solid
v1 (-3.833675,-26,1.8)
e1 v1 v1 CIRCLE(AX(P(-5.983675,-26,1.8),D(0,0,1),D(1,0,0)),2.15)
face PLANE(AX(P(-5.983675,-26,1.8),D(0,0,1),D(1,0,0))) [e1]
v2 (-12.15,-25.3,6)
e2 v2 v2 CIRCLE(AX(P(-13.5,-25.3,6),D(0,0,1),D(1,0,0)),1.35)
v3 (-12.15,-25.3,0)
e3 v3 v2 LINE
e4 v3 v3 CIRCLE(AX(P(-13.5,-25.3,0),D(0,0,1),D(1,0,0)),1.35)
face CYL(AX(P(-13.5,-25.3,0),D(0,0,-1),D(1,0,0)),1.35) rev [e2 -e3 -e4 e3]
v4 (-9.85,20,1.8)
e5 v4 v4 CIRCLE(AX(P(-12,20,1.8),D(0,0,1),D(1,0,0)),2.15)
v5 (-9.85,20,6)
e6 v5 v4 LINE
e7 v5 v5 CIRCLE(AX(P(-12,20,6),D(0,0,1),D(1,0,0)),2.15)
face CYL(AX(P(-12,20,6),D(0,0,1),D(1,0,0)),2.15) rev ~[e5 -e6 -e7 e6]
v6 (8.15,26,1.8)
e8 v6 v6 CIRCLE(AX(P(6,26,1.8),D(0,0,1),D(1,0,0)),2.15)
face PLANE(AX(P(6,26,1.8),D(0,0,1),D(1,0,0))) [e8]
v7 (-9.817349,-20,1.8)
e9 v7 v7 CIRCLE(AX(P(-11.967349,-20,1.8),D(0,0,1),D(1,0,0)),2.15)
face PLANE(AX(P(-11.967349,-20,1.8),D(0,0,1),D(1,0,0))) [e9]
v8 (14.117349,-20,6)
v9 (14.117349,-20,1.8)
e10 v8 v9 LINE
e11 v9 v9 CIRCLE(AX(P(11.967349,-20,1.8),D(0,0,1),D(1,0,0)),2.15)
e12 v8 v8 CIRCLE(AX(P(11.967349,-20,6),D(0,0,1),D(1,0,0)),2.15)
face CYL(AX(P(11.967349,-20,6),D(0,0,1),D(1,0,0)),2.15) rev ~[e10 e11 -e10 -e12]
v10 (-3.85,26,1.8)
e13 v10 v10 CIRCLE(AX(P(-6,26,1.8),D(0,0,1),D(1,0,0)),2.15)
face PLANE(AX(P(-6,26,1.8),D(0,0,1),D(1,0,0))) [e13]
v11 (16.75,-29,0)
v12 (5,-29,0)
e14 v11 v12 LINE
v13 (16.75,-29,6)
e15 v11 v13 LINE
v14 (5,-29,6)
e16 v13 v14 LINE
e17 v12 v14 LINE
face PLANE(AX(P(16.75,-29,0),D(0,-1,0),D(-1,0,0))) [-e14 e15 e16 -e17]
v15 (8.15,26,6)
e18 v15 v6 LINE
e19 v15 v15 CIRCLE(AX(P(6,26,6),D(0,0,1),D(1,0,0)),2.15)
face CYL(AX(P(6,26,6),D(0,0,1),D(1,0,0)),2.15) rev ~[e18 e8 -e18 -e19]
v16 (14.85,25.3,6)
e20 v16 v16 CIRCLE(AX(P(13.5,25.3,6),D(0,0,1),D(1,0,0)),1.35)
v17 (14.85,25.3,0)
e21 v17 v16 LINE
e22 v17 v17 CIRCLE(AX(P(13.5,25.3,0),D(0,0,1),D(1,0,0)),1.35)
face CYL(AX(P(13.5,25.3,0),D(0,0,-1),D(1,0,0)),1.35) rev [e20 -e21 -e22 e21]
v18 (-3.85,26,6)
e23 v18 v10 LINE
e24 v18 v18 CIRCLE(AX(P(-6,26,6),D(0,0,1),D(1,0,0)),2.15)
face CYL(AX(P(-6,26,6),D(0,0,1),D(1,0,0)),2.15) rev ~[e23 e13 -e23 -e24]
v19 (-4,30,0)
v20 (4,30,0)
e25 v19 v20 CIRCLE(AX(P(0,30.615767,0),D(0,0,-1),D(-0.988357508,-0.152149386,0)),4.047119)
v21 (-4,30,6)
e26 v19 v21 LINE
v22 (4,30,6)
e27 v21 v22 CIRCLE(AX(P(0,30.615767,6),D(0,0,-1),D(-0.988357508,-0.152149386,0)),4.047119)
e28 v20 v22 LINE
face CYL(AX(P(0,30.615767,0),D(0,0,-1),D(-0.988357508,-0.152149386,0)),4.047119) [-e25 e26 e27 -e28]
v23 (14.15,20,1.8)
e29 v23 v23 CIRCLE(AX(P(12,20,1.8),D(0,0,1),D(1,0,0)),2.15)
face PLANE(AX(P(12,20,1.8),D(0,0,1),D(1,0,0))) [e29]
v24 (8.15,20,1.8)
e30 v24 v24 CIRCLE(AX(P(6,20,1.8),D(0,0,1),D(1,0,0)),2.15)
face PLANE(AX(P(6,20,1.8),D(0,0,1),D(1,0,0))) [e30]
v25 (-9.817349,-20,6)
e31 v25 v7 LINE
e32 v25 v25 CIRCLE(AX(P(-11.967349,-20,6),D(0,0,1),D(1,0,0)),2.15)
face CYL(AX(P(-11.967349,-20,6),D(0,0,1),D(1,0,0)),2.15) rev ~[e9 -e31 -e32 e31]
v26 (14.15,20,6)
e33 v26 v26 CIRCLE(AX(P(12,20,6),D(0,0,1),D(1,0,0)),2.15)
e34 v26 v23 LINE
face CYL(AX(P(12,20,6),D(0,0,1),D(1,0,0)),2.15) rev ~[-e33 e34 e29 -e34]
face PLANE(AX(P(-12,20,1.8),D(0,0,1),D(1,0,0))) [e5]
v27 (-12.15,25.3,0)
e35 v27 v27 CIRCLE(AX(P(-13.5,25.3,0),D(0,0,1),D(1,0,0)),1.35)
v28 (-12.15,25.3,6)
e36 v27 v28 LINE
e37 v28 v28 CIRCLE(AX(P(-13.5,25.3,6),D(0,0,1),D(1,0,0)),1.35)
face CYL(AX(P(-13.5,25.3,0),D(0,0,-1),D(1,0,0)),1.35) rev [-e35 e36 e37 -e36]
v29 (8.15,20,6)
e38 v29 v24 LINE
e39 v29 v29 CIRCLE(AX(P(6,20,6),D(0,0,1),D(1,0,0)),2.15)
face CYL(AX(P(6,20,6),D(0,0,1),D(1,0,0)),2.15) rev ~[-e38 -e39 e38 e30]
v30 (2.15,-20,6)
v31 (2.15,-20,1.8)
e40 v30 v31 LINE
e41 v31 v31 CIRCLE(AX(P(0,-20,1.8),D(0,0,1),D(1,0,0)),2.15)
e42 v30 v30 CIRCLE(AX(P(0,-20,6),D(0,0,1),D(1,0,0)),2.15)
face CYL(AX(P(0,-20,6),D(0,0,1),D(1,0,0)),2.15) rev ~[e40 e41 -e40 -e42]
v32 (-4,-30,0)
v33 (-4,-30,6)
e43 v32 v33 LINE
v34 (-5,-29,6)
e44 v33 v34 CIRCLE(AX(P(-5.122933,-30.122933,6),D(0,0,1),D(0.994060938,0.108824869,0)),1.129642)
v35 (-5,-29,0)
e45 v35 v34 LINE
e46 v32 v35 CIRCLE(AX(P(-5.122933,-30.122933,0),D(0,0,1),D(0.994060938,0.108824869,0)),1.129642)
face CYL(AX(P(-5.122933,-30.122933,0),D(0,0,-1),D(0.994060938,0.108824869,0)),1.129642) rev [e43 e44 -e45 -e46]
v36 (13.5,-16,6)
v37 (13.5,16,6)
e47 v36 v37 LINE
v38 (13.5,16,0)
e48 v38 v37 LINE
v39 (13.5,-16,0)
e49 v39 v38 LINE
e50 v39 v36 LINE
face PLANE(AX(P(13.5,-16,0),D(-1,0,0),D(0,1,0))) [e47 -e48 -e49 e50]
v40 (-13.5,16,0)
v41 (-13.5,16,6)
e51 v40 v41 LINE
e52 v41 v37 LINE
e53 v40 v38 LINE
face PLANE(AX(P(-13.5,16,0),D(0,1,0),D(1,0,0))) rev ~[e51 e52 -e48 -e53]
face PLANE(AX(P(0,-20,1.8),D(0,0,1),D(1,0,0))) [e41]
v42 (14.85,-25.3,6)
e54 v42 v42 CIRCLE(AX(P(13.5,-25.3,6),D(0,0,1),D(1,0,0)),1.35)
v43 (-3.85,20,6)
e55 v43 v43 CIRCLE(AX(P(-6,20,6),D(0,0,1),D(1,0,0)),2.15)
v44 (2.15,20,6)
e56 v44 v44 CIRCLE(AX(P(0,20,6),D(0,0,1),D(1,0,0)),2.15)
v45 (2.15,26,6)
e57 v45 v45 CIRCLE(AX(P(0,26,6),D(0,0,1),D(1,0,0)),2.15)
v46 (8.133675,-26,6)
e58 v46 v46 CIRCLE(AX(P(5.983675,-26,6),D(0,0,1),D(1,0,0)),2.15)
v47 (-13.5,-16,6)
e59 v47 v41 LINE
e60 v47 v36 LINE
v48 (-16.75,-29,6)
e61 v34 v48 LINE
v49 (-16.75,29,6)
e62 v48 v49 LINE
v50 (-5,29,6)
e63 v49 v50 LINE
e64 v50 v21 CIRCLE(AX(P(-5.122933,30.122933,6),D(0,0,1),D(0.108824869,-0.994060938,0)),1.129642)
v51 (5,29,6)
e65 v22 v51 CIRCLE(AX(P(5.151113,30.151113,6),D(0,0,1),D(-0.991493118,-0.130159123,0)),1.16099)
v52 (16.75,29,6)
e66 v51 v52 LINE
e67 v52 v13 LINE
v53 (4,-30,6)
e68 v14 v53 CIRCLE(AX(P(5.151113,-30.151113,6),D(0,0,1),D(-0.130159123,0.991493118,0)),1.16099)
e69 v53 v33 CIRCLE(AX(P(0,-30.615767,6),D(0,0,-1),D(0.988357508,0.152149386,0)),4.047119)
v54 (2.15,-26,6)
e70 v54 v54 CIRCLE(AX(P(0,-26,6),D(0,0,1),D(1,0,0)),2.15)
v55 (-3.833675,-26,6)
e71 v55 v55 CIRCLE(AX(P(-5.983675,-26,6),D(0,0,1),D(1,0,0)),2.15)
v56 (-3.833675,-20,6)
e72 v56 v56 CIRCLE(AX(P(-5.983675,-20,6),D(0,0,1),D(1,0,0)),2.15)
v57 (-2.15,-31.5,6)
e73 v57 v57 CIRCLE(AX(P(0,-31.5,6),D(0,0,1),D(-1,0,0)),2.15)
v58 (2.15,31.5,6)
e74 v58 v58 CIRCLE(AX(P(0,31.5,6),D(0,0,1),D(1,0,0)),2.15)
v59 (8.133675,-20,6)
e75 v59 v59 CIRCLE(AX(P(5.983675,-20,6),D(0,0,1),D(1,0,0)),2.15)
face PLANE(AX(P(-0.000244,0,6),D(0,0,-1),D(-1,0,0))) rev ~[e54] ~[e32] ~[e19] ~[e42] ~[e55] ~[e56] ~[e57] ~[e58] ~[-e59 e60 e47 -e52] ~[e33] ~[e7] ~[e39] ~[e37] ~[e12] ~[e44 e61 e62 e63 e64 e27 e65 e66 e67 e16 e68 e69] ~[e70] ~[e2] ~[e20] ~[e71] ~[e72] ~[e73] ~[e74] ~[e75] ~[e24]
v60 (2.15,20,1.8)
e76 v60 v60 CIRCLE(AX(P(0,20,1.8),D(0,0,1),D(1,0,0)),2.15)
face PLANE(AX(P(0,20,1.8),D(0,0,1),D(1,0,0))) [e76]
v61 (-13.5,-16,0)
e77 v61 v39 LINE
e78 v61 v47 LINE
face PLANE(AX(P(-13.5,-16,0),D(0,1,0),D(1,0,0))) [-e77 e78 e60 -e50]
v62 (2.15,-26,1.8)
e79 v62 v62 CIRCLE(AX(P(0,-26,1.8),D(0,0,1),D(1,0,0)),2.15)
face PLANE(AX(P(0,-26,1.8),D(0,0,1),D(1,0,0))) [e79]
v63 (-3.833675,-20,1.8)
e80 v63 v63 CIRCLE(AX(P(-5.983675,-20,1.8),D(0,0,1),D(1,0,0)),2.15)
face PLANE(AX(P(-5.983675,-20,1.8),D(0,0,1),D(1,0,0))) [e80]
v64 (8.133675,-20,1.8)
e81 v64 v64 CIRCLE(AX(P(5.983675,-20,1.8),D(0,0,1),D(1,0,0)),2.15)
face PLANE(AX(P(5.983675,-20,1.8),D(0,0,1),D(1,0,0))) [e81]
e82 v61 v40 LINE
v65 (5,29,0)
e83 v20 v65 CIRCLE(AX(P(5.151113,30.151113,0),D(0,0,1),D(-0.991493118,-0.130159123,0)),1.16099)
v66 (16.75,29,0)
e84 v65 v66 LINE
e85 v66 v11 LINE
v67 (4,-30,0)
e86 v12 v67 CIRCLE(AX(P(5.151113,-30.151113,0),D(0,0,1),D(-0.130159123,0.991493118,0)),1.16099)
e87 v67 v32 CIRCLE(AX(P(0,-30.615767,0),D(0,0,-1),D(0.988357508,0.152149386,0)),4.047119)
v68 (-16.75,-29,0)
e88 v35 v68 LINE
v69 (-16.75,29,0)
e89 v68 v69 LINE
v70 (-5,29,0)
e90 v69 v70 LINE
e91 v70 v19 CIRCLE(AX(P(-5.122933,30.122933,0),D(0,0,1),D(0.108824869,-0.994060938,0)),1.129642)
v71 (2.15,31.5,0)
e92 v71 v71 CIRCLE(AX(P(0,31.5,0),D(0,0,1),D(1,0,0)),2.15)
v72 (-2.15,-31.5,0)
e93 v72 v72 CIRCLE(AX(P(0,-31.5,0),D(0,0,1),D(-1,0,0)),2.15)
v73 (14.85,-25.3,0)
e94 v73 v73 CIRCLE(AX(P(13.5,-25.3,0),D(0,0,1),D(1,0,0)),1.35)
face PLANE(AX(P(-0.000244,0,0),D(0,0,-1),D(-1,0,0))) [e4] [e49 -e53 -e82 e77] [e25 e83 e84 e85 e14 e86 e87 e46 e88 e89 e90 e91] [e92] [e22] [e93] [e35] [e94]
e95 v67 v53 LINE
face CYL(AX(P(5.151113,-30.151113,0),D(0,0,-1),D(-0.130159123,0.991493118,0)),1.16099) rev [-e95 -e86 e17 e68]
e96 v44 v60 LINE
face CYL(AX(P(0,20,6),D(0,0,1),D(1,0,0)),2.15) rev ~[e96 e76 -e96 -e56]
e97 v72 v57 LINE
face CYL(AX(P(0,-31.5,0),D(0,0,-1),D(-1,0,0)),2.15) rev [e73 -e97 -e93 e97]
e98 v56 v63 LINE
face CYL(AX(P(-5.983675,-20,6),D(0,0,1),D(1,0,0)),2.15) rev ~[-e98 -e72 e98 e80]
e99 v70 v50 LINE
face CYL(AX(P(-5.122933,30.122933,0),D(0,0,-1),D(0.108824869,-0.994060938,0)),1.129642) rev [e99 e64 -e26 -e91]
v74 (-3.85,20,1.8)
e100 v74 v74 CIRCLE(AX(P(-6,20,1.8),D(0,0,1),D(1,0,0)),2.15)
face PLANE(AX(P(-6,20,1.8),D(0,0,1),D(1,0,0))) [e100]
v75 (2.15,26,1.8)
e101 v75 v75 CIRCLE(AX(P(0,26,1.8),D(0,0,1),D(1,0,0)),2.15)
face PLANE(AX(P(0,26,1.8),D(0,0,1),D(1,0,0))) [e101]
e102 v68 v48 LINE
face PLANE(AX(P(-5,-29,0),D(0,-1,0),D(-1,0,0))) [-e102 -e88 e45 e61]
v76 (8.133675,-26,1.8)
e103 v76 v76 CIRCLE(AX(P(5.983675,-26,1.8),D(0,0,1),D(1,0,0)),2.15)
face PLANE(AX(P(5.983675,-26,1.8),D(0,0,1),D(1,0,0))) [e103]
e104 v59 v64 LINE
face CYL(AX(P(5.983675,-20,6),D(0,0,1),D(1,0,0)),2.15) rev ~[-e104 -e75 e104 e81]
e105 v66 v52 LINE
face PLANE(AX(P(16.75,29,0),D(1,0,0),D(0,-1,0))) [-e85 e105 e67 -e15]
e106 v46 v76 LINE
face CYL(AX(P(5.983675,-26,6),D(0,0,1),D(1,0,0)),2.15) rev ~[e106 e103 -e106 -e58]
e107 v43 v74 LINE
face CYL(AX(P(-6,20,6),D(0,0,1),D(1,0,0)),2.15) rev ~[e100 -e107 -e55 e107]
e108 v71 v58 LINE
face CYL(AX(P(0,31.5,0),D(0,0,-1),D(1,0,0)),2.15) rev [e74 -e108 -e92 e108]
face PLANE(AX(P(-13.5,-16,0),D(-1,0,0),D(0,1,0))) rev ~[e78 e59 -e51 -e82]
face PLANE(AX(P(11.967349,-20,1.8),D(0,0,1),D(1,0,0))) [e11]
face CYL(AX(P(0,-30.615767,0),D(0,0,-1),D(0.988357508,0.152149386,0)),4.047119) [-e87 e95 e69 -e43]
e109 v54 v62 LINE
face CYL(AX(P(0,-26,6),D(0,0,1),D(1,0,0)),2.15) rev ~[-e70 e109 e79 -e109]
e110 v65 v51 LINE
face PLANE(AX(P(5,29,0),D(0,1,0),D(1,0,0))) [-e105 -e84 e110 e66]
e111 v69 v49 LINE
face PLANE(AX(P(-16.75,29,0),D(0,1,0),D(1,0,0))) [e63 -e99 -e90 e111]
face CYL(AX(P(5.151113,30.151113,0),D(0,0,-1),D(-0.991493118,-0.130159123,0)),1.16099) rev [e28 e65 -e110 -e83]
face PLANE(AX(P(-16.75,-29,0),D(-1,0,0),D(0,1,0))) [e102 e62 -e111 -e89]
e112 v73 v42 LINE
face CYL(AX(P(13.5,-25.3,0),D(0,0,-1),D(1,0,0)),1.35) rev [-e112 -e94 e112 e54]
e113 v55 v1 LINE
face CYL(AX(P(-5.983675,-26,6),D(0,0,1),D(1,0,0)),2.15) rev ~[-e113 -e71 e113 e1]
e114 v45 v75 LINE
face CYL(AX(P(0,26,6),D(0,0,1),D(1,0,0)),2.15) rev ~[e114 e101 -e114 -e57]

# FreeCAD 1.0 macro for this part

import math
import FreeCAD as App
import Part
import Sketcher

V = App.Vector

doc = App.newDocument("Part")
body = doc.addObject("PartDesign::Body", "Body")

sketch1 = body.newObject("Sketcher::SketchObject", "Sketch")
sketch1.AttachmentSupport = (doc.getObject("XY_Plane"), [""])
sketch1.MapMode = "FlatFace"
sketch1.addGeometry(Part.LineSegment(V(-5, 29, 0), V(-16.8, 29, 0)), False)
sketch1.addGeometry(Part.LineSegment(V(-16.8, 29, 0), V(-16.8, -29, 0)), False)
sketch1.addGeometry(Part.LineSegment(V(-16.8, -29, 0), V(-5, -29, 0)), False)
sketch1.addGeometry(Part.ArcOfCircle(Part.Circle(V(-5.1, -30.1, 0), V(0, 0, 1), 1.1), math.radians(6), math.radians(84)), False)
sketch1.addGeometry(Part.ArcOfCircle(Part.Circle(V(0, -30.6, 0), V(0, 0, 1), 4), math.radians(171), math.radians(369)), False)
sketch1.addGeometry(Part.ArcOfCircle(Part.Circle(V(5.2, -30.2, 0), V(0, 0, 1), 1.2), math.radians(97), math.radians(173)), False)
sketch1.addGeometry(Part.LineSegment(V(5, -29, 0), V(16.8, -29, 0)), False)
sketch1.addGeometry(Part.LineSegment(V(16.8, -29, 0), V(16.8, 29, 0)), False)
sketch1.addGeometry(Part.LineSegment(V(16.8, 29, 0), V(5, 29, 0)), False)
sketch1.addGeometry(Part.ArcOfCircle(Part.Circle(V(5.2, 30.2, 0), V(0, 0, 1), 1.2), math.radians(-173), math.radians(-97)), False)
sketch1.addGeometry(Part.ArcOfCircle(Part.Circle(V(0, 30.6, 0), V(0, 0, 1), 4), math.radians(-9), math.radians(189)), False)
sketch1.addGeometry(Part.ArcOfCircle(Part.Circle(V(-5.1, 30.1, 0), V(0, 0, 1), 1.1), math.radians(-84), math.radians(-6)), False)
sketch1.addGeometry(Part.Circle(V(13.5, -25.3, 0), V(0, 0, 1), 1.4), False)
sketch1.addGeometry(Part.Circle(V(0, -31.5, 0), V(0, 0, 1), 2.1), False)
sketch1.addGeometry(Part.Circle(V(-13.5, -25.3, 0), V(0, 0, 1), 1.4), False)
sketch1.addGeometry(Part.Circle(V(13.5, 25.3, 0), V(0, 0, 1), 1.4), False)
sketch1.addGeometry(Part.Circle(V(0, 31.5, 0), V(0, 0, 1), 2.1), False)
sketch1.addGeometry(Part.LineSegment(V(-13.5, -16, 0), V(-13.5, 16, 0)), False)
sketch1.addGeometry(Part.LineSegment(V(-13.5, 16, 0), V(13.5, 16, 0)), False)
sketch1.addGeometry(Part.LineSegment(V(13.5, 16, 0), V(13.5, -16, 0)), False)
sketch1.addGeometry(Part.LineSegment(V(13.5, -16, 0), V(-13.5, -16, 0)), False)
sketch1.addGeometry(Part.Circle(V(-13.5, 25.3, 0), V(0, 0, 1), 1.4), False)
sketch1.addConstraint(Sketcher.Constraint("Coincident", 0, 2, 1, 1))
sketch1.addConstraint(Sketcher.Constraint("Coincident", 1, 2, 2, 1))
sketch1.addConstraint(Sketcher.Constraint("Coincident", 2, 2, 3, 2))
sketch1.addConstraint(Sketcher.Constraint("Coincident", 3, 1, 4, 1))
sketch1.addConstraint(Sketcher.Constraint("Coincident", 4, 2, 5, 2))
sketch1.addConstraint(Sketcher.Constraint("Coincident", 5, 1, 6, 1))
sketch1.addConstraint(Sketcher.Constraint("Coincident", 6, 2, 7, 1))
sketch1.addConstraint(Sketcher.Constraint("Coincident", 7, 2, 8, 1))
sketch1.addConstraint(Sketcher.Constraint("Coincident", 8, 2, 9, 2))
sketch1.addConstraint(Sketcher.Constraint("Coincident", 9, 1, 10, 1))
sketch1.addConstraint(Sketcher.Constraint("Coincident", 10, 2, 11, 2))
sketch1.addConstraint(Sketcher.Constraint("Coincident", 11, 1, 0, 1))
sketch1.addConstraint(Sketcher.Constraint("Coincident", 17, 2, 18, 1))
sketch1.addConstraint(Sketcher.Constraint("Coincident", 18, 2, 19, 1))
sketch1.addConstraint(Sketcher.Constraint("Coincident", 19, 2, 20, 1))
sketch1.addConstraint(Sketcher.Constraint("Coincident", 20, 2, 17, 1))
sketch1.addConstraint(Sketcher.Constraint("Horizontal", 0))
sketch1.addConstraint(Sketcher.Constraint("Vertical", 1))
sketch1.addConstraint(Sketcher.Constraint("Horizontal", 2))
sketch1.addConstraint(Sketcher.Constraint("Horizontal", 6))
sketch1.addConstraint(Sketcher.Constraint("Vertical", 7))
sketch1.addConstraint(Sketcher.Constraint("Horizontal", 8))
sketch1.addConstraint(Sketcher.Constraint("Vertical", 17))
sketch1.addConstraint(Sketcher.Constraint("Horizontal", 18))
sketch1.addConstraint(Sketcher.Constraint("Vertical", 19))
sketch1.addConstraint(Sketcher.Constraint("Horizontal", 20))
sketch1.addConstraint(Sketcher.Constraint("Equal", 5, 9))
sketch1.addConstraint(Sketcher.Constraint("Equal", 4, 10))
sketch1.addConstraint(Sketcher.Constraint("Equal", 3, 11))
sketch1.addConstraint(Sketcher.Constraint("Equal", 12, 14))
sketch1.addConstraint(Sketcher.Constraint("Equal", 14, 15))
sketch1.addConstraint(Sketcher.Constraint("Equal", 13, 16))
sketch1.addConstraint(Sketcher.Constraint("Equal", 15, 21))
sketch1.addConstraint(Sketcher.Constraint("Symmetric", 4, 3, 10, 3, -1, 1))
sketch1.addConstraint(Sketcher.Constraint("Symmetric", 14, 3, 15, 3, -1, 1))
sketch1.addConstraint(Sketcher.Constraint("Symmetric", 13, 3, 16, 3, -1, 1))
sketch1.addConstraint(Sketcher.Constraint("Symmetric", 12, 3, 21, 3, -1, 1))
sketch1.addConstraint(Sketcher.Constraint("Symmetric", 0, 2, 6, 2, -1, 1))
sketch1.addConstraint(Sketcher.Constraint("Symmetric", 2, 2, 8, 2, -1, 1))
sketch1.addConstraint(Sketcher.Constraint("Symmetric", 17, 2, 19, 2, -1, 1))
sketch1.addConstraint(Sketcher.Constraint("Symmetric", 12, 3, 14, 3, -2))
sketch1.addConstraint(Sketcher.Constraint("Symmetric", 3, 1, 4, 2, -2))
sketch1.addConstraint(Sketcher.Constraint("Symmetric", 2, 2, 5, 1, -2))
sketch1.addConstraint(Sketcher.Constraint("Symmetric", 3, 3, 11, 3, -1))
sketch1.addConstraint(Sketcher.Constraint("PointOnObject", 13, 3, -2))
sketch1.addConstraint(Sketcher.Constraint("Horizontal", 9, 1, 10, 2))
sketch1.addConstraint(Sketcher.Constraint("Vertical", 21, 3, 17, 2))
sketch1.addConstraint(Sketcher.Constraint("Diameter", 12, 2.7))
sketch1.addConstraint(Sketcher.Constraint("Diameter", 13, 4.3))
sketch1.addConstraint(Sketcher.Constraint("DistanceX", 18, 1, 18, 2, 27.0))
sketch1.addConstraint(Sketcher.Constraint("DistanceY", 1, 2, 1, 1, 58.0))
sketch1.addConstraint(Sketcher.Constraint("DistanceY", 17, 1, 17, 2, 32.0))
sketch1.addConstraint(Sketcher.Constraint("DistanceX", 2, 2, -1, 1, 5.0))
sketch1.addConstraint(Sketcher.Constraint("DistanceX", 3, 1, -1, 1, 4.0))
sketch1.addConstraint(Sketcher.Constraint("DistanceY", 3, 1, -1, 1, 30.0))
sketch1.addConstraint(Sketcher.Constraint("DistanceX", 0, 2, 0, 1, 11.75))
sketch1.addConstraint(Sketcher.Constraint("DistanceY", 12, 3, -1, 1, 25.3))
sketch1.addConstraint(Sketcher.Constraint("DistanceY", 13, 3, -1, 1, 31.5))
sketch1.addConstraint(Sketcher.Constraint("Radius", 4, 4.047119))
sketch1.addConstraint(Sketcher.Constraint("Radius", 5, 1.16099))
sketch1.addConstraint(Sketcher.Constraint("Radius", 3, 1.129642))
pad1 = body.newObject("PartDesign::Pad", "Pad")
pad1.Profile = sketch1
pad1.Length = 6

sketch2 = body.newObject("Sketcher::SketchObject", "Sketch001")
sketch2.AttachmentSupport = (doc.getObject("XY_Plane"), [""])
sketch2.MapMode = "FlatFace"
sketch2.AttachmentOffset = App.Placement(V(0, 0, 6), App.Rotation())
sketch2.addGeometry(Part.Circle(V(-12, 20, 0), V(0, 0, 1), 2.1), False)
sketch2.addGeometry(Part.Circle(V(-6, 20, 0), V(0, 0, 1), 2.1), False)
sketch2.addGeometry(Part.Circle(V(0, 20, 0), V(0, 0, 1), 2.1), False)
sketch2.addGeometry(Part.Circle(V(6, 20, 0), V(0, 0, 1), 2.1), False)
sketch2.addGeometry(Part.Circle(V(12, 20, 0), V(0, 0, 1), 2.1), False)
sketch2.addGeometry(Part.Circle(V(-6, 26, 0), V(0, 0, 1), 2.1), False)
sketch2.addGeometry(Part.Circle(V(0, 26, 0), V(0, 0, 1), 2.1), False)
sketch2.addGeometry(Part.Circle(V(6, 26, 0), V(0, 0, 1), 2.1), False)
sketch2.addGeometry(Part.Circle(V(-12, -20, 0), V(0, 0, 1), 2.1), False)
sketch2.addGeometry(Part.Circle(V(-6, -20, 0), V(0, 0, 1), 2.1), False)
sketch2.addGeometry(Part.Circle(V(0, -20, 0), V(0, 0, 1), 2.1), False)
sketch2.addGeometry(Part.Circle(V(6, -20, 0), V(0, 0, 1), 2.1), False)
sketch2.addGeometry(Part.Circle(V(12, -20, 0), V(0, 0, 1), 2.1), False)
sketch2.addGeometry(Part.Circle(V(-6, -26, 0), V(0, 0, 1), 2.1), False)
sketch2.addGeometry(Part.Circle(V(0, -26, 0), V(0, 0, 1), 2.1), False)
sketch2.addGeometry(Part.Circle(V(6, -26, 0), V(0, 0, 1), 2.1), False)
sketch2.addConstraint(Sketcher.Constraint("Equal", 0, 1))
sketch2.addConstraint(Sketcher.Constraint("Equal", 1, 2))
sketch2.addConstraint(Sketcher.Constraint("Equal", 2, 3))
sketch2.addConstraint(Sketcher.Constraint("Equal", 3, 4))
sketch2.addConstraint(Sketcher.Constraint("Equal", 4, 5))
sketch2.addConstraint(Sketcher.Constraint("Equal", 5, 6))
sketch2.addConstraint(Sketcher.Constraint("Equal", 6, 7))
sketch2.addConstraint(Sketcher.Constraint("Equal", 7, 8))
sketch2.addConstraint(Sketcher.Constraint("Equal", 8, 9))
sketch2.addConstraint(Sketcher.Constraint("Equal", 9, 10))
sketch2.addConstraint(Sketcher.Constraint("Equal", 10, 11))
sketch2.addConstraint(Sketcher.Constraint("Equal", 11, 12))
sketch2.addConstraint(Sketcher.Constraint("Equal", 12, 13))
sketch2.addConstraint(Sketcher.Constraint("Equal", 13, 14))
sketch2.addConstraint(Sketcher.Constraint("Equal", 14, 15))
sketch2.addConstraint(Sketcher.Constraint("Symmetric", 2, 3, 10, 3, -1, 1))
sketch2.addConstraint(Sketcher.Constraint("Symmetric", 6, 3, 14, 3, -1, 1))
sketch2.addConstraint(Sketcher.Constraint("Symmetric", 1, 3, 3, 3, -2))
sketch2.addConstraint(Sketcher.Constraint("Symmetric", 0, 3, 4, 3, -2))
sketch2.addConstraint(Sketcher.Constraint("Symmetric", 5, 3, 7, 3, -2))
sketch2.addConstraint(Sketcher.Constraint("Symmetric", 9, 3, 11, 3, -2))
sketch2.addConstraint(Sketcher.Constraint("Symmetric", 8, 3, 12, 3, -2))
sketch2.addConstraint(Sketcher.Constraint("Symmetric", 13, 3, 15, 3, -2))
sketch2.addConstraint(Sketcher.Constraint("PointOnObject", 2, 3, -2))
sketch2.addConstraint(Sketcher.Constraint("PointOnObject", 6, 3, -2))
sketch2.addConstraint(Sketcher.Constraint("Horizontal", 0, 3, 1, 3))
sketch2.addConstraint(Sketcher.Constraint("Horizontal", 1, 3, 2, 3))
sketch2.addConstraint(Sketcher.Constraint("Horizontal", 5, 3, 6, 3))
sketch2.addConstraint(Sketcher.Constraint("Horizontal", 8, 3, 9, 3))
sketch2.addConstraint(Sketcher.Constraint("Horizontal", 9, 3, 10, 3))
sketch2.addConstraint(Sketcher.Constraint("Horizontal", 13, 3, 14, 3))
sketch2.addConstraint(Sketcher.Constraint("Vertical", 1, 3, 5, 3))
sketch2.addConstraint(Sketcher.Constraint("Vertical", 9, 3, 13, 3))
sketch2.addConstraint(Sketcher.Constraint("Diameter", 0, 4.3))
sketch2.addConstraint(Sketcher.Constraint("DistanceX", 0, 3, -1, 1, 12.0))
sketch2.addConstraint(Sketcher.Constraint("DistanceY", -1, 1, 0, 3, 20.0))
sketch2.addConstraint(Sketcher.Constraint("DistanceX", 1, 3, -1, 1, 6.0))
sketch2.addConstraint(Sketcher.Constraint("DistanceY", -1, 1, 5, 3, 26.0))
sketch2.addConstraint(Sketcher.Constraint("DistanceX", 8, 3, 12, 3, 23.934699))
sketch2.addConstraint(Sketcher.Constraint("DistanceX", 9, 3, 11, 3, 11.967349))
pocket1 = body.newObject("PartDesign::Pocket", "Pocket")
pocket1.Profile = sketch2
pocket1.Length = 4.2

doc.recompute()
